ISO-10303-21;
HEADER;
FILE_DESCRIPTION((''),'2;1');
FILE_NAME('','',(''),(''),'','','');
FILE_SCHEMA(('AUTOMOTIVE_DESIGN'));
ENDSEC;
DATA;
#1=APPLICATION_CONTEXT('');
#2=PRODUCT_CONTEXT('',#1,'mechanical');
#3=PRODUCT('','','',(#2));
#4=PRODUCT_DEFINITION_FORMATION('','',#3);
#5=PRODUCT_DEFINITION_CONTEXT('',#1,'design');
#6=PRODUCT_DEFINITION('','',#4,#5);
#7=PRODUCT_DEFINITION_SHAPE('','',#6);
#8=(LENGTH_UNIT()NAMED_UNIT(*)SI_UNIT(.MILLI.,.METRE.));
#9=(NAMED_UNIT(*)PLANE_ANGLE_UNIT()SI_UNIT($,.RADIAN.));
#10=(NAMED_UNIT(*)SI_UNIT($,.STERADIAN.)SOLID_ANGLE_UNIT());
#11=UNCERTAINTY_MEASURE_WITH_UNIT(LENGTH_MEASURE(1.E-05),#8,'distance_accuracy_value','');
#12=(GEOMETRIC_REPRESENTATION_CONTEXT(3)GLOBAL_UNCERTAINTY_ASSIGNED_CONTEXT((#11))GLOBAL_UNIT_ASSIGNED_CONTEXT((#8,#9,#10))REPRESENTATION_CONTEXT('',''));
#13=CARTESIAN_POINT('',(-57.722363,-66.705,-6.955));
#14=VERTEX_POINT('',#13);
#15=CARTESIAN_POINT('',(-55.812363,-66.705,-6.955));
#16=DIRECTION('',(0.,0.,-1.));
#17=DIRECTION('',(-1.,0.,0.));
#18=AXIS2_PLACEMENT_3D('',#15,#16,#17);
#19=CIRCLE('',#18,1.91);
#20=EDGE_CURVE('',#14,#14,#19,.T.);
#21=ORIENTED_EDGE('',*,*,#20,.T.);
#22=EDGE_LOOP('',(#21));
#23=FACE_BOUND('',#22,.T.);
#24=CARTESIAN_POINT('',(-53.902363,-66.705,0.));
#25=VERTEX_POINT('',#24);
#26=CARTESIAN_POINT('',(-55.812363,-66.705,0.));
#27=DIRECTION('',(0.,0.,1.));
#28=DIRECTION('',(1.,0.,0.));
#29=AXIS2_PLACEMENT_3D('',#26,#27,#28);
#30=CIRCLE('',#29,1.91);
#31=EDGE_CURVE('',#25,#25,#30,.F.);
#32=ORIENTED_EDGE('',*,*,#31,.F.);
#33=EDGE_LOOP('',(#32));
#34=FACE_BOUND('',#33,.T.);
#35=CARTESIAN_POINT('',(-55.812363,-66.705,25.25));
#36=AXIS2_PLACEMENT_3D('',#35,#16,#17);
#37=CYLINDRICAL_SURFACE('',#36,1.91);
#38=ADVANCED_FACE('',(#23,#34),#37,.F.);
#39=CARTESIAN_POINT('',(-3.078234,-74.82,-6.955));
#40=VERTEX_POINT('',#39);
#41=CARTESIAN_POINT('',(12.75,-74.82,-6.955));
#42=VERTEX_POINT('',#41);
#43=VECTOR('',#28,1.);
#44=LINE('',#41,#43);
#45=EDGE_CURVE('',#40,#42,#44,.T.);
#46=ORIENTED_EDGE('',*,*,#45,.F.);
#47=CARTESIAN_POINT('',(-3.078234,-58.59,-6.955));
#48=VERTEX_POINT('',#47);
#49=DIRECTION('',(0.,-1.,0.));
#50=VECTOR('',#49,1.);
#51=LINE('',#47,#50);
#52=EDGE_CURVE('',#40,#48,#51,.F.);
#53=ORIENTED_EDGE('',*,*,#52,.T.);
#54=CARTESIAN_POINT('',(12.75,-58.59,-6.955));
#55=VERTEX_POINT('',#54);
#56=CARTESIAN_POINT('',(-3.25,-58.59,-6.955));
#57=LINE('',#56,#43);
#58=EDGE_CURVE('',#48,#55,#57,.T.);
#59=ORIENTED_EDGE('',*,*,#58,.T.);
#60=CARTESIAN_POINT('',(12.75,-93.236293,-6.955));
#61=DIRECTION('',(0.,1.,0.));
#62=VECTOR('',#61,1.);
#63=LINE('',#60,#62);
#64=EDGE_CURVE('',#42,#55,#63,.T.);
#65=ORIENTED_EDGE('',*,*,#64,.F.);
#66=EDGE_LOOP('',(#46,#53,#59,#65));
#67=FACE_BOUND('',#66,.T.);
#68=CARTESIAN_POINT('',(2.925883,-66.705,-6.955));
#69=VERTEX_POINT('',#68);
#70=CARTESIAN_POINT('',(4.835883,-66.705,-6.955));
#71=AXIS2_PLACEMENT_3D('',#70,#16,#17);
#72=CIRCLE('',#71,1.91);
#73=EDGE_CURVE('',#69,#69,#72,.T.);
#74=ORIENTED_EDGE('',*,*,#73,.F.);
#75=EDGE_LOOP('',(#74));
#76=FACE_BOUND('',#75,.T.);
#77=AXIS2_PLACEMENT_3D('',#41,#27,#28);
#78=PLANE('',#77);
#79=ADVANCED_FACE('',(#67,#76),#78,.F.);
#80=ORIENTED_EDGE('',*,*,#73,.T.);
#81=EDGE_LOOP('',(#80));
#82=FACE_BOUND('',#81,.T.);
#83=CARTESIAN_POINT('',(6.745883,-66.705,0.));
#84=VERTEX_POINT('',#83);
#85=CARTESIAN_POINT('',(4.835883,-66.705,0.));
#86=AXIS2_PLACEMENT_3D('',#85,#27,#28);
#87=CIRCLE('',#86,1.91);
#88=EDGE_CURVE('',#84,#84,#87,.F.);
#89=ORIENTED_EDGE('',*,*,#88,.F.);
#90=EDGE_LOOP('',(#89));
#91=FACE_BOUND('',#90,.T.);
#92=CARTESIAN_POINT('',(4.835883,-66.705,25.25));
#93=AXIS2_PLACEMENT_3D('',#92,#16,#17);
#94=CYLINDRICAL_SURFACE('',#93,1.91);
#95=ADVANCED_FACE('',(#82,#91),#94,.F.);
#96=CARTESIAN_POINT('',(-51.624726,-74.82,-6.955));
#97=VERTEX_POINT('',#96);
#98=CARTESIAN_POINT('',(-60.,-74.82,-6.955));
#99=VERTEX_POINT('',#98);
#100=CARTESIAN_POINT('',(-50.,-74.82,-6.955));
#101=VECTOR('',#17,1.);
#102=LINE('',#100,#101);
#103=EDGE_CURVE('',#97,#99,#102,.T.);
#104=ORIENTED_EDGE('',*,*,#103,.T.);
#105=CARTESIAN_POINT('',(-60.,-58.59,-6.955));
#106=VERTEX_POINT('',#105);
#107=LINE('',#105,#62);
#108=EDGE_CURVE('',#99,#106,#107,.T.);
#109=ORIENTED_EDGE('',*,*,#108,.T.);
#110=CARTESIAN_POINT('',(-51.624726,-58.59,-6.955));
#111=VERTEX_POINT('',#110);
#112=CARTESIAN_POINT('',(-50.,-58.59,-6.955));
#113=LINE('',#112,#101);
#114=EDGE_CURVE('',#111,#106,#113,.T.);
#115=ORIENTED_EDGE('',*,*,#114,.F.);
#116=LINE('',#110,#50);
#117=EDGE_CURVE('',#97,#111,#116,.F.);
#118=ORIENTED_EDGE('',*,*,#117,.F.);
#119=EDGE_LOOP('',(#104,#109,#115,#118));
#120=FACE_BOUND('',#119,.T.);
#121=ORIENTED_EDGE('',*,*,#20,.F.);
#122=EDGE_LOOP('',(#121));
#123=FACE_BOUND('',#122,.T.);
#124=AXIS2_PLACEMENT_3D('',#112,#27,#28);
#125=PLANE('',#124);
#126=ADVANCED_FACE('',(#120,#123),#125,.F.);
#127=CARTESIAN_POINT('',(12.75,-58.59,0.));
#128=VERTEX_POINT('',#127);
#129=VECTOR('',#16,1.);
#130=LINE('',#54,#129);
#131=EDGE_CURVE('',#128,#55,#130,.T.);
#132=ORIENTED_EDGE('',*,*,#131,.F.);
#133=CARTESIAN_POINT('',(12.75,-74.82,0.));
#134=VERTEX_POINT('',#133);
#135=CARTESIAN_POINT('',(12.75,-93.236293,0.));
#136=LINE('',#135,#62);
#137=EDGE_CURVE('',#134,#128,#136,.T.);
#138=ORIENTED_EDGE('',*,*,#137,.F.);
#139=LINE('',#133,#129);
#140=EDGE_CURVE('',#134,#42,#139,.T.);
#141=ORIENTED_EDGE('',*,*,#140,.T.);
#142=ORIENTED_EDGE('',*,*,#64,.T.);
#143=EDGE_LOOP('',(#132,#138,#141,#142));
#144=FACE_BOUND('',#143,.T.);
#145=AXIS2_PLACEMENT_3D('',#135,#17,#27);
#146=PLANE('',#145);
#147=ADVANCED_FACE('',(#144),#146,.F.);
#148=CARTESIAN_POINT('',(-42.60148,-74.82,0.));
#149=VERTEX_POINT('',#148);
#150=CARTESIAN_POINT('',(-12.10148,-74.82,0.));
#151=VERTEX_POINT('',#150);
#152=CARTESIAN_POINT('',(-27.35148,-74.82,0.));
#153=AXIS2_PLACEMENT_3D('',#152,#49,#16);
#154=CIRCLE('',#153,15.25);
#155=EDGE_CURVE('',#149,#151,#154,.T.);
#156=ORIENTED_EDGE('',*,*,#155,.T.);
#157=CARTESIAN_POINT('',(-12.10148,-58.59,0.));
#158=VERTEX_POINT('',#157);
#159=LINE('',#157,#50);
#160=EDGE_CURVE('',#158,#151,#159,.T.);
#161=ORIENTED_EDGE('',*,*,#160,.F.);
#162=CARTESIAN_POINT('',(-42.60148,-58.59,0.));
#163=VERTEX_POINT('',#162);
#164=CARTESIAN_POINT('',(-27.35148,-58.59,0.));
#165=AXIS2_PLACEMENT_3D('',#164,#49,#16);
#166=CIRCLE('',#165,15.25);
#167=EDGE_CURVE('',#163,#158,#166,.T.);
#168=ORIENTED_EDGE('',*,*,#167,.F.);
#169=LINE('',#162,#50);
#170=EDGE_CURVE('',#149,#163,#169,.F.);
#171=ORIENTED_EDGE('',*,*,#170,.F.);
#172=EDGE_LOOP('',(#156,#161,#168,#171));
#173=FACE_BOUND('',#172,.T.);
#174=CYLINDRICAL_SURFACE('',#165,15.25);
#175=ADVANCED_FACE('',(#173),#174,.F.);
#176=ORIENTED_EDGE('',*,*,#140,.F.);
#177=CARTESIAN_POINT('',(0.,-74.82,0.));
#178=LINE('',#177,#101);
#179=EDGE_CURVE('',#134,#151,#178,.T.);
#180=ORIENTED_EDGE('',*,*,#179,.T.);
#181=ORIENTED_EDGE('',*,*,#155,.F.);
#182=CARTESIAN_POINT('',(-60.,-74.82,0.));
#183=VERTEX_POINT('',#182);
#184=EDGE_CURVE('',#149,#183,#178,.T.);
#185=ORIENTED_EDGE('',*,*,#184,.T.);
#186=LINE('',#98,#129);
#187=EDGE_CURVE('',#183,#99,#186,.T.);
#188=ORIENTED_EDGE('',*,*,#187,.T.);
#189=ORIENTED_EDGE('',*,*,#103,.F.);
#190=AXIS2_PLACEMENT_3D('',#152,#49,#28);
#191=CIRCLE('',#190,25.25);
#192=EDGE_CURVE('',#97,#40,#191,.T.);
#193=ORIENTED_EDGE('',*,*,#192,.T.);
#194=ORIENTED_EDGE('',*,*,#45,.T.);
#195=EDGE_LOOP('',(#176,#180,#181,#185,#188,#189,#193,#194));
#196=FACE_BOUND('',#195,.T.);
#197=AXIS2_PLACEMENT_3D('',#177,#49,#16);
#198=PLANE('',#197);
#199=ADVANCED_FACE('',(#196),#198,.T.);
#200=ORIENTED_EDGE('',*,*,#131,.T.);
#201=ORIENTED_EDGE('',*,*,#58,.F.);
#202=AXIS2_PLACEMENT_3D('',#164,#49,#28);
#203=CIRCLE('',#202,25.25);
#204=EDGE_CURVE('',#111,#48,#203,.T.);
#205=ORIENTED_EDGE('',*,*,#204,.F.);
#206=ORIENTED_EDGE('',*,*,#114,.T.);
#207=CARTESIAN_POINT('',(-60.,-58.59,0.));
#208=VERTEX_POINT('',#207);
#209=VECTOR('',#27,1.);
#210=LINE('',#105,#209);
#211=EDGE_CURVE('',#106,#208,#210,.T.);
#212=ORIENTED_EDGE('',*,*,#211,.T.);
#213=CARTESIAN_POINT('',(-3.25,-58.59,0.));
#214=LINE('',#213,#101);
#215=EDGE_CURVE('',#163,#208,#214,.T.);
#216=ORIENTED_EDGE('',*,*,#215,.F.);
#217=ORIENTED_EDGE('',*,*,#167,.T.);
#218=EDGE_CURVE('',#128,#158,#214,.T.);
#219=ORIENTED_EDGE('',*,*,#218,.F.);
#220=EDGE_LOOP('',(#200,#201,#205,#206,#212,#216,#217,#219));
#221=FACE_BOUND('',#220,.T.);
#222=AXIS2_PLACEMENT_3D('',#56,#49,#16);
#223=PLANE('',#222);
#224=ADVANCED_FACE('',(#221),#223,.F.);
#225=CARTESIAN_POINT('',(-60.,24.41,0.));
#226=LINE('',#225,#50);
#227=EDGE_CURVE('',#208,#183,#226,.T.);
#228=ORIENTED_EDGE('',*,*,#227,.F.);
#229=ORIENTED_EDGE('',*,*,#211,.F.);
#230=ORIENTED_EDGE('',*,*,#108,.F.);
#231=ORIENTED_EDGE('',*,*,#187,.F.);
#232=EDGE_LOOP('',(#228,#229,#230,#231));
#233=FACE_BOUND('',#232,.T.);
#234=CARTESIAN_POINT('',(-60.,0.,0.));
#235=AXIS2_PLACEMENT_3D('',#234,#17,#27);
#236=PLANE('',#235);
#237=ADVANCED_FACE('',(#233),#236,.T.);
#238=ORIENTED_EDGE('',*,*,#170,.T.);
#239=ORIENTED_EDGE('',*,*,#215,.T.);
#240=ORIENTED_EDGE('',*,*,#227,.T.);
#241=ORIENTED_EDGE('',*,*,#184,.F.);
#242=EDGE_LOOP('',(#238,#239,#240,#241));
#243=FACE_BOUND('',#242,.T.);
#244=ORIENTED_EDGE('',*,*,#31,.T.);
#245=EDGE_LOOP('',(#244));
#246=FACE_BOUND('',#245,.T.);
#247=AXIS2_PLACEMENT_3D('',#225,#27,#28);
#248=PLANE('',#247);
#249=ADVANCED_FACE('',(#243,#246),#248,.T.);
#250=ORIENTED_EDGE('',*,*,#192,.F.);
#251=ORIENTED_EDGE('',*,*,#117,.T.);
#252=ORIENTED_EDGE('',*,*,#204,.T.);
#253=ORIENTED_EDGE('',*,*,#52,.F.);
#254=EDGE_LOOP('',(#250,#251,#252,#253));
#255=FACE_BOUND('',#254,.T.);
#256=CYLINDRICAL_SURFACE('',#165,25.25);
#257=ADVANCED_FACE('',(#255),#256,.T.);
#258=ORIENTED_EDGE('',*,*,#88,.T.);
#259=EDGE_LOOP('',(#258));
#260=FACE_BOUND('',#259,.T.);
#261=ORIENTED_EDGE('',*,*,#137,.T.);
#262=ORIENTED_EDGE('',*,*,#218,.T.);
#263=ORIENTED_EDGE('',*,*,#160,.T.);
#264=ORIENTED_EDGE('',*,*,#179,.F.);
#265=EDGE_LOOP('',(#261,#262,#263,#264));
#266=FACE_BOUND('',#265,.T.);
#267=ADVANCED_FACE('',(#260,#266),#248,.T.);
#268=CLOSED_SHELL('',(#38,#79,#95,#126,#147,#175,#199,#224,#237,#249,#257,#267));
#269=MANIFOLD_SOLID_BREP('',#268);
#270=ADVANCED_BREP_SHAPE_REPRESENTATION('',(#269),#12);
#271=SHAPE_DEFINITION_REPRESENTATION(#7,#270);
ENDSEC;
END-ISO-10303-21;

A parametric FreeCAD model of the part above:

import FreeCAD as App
import Part
import Sketcher
from FreeCAD import Vector


def add_polygon(sketch, points):
    """Adds a closed chain of lines whose ends are joined by coincident constraints."""
    first, n = sketch.GeometryCount, len(points)
    for a, b in zip(points, points[1:] + points[:1]):
        sketch.addGeometry(Part.LineSegment(App.Vector(*a, 0), App.Vector(*b, 0)), False)
    for i in range(n):
        sketch.addConstraint(Sketcher.Constraint("Coincident", first + i, 2, first + (i + 1) % n, 1))

doc = App.newDocument("Part")
body = doc.addObject("PartDesign::Body", "Body")

# Sketch on XZ plane
sketch1 = body.newObject("Sketcher::SketchObject", "Sketch")
sketch1.AttachmentSupport = (doc.getObject("XZ_Plane"), [""])
sketch1.MapMode = "FlatFace"
add_polygon(sketch1, [(-26, -17), (-26, 17), (26, 17), (26, -17)])  # lines 0-3
add_polygon(sketch1, [(16, 7), (-16, 7), (-16, -7), (16, -7)])  # lines 4-7
sketch1.addConstraint([
    Sketcher.Constraint("Vertical", 0),
    Sketcher.Constraint("Horizontal", 1),
    Sketcher.Constraint("Vertical", 2),
    Sketcher.Constraint("Horizontal", 3),
    Sketcher.Constraint("Horizontal", 4),
    Sketcher.Constraint("Vertical", 5),
    Sketcher.Constraint("Horizontal", 6),
    Sketcher.Constraint("Vertical", 7),
    Sketcher.Constraint("Symmetric", 0, 2, 2, 2, -1, 1),
    Sketcher.Constraint("Symmetric", 4, 2, 6, 2, -1, 1),
    Sketcher.Constraint("DistanceX", 1, 1, 1, 2, 51.5),
    Sketcher.Constraint("DistanceX", 4, 2, 4, 1, 31.5),
    Sketcher.Constraint("DistanceY", 4, 2, 0, 2, 10.0),
    Sketcher.Constraint("DistanceY", 0, 1, 0, 2, 34.15),
])
pad1 = body.newObject("PartDesign::Pad", "Pad")
pad1.Profile = sketch1
pad1.Length = 12.25
pad1.Reversed = True

# Sketch on XZ plane
sketch2 = body.newObject("Sketcher::SketchObject", "Sketch001")
sketch2.AttachmentSupport = (doc.getObject("XZ_Plane"), [""])
sketch2.MapMode = "FlatFace"
sketch2.AttachmentOffset = App.Placement(Vector(0, 0, -12.25), App.Rotation())
sketch2.addGeometry([
    Part.Circle(Vector(-20.8, 0, 0), Vector(0, 0, 1), 1.9),
    Part.Circle(Vector(20.8, 0, 0), Vector(0, 0, 1), 1.9),
], False)
sketch2.addConstraint([
    Sketcher.Constraint("Equal", 0, 1),
    Sketcher.Constraint("Symmetric", 0, 3, 1, 3, -1, 1),
    Sketcher.Constraint("PointOnObject", 0, 3, -1),
    Sketcher.Constraint("Diameter", 0, 3.82),
    Sketcher.Constraint("DistanceX", 0, 3, 1, 3, 41.5),
])
pocket1 = body.newObject("PartDesign::Pocket", "Pocket")
pocket1.Profile = sketch2
pocket1.Type = "ThroughAll"
pocket1.Reversed = True

# Sketch on XZ plane
sketch3 = body.newObject("Sketcher::SketchObject", "Sketch002")
sketch3.AttachmentSupport = (doc.getObject("XZ_Plane"), [""])
sketch3.MapMode = "FlatFace"
add_polygon(sketch3, [(13, 7), (13, -7), (26, -7), (26, 7)])  # lines 0-3
sketch3.addConstraint([
    Sketcher.Constraint("Vertical", 0),
    Sketcher.Constraint("Horizontal", 1),
    Sketcher.Constraint("Vertical", 2),
    Sketcher.Constraint("Horizontal", 3),
    Sketcher.Constraint("DistanceX", 1, 1, 1, 2, 13.0),
    Sketcher.Constraint("DistanceY", 0, 2, 0, 1, 13.91),
    Sketcher.Constraint("DistanceX", -1, 1, 0, 2, 12.75),
    Sketcher.Constraint("DistanceY", 0, 2, -1, 1, 6.955),
])
pad2 = body.newObject("PartDesign::Pad", "Pad001")
pad2.Profile = sketch3
pad2.Length = 74.82

# Sketch on YZ plane
sketch4 = body.newObject("Sketcher::SketchObject", "Sketch003")
sketch4.AttachmentSupport = (doc.getObject("YZ_Plane"), [""])
sketch4.MapMode = "FlatFace"
sketch4.AttachmentOffset = App.Placement(Vector(0, 0, 12.75), App.Rotation())
add_polygon(sketch4, [(-59, -7), (-75, -7), (-75, 7), (-59, 7)])  # lines 0-3
sketch4.addConstraint([
    Sketcher.Constraint("Horizontal", 0),
    Sketcher.Constraint("Vertical", 1),
    Sketcher.Constraint("Horizontal", 2),
    Sketcher.Constraint("Vertical", 3),
    Sketcher.Constraint("DistanceX", 0, 2, 0, 1, 16.23),
    Sketcher.Constraint("DistanceY", 1, 1, 1, 2, 13.91),
    Sketcher.Constraint("DistanceX", 0, 2, -1, 1, 74.82),
    Sketcher.Constraint("DistanceY", 0, 2, -1, 1, 6.955),
])
pad3 = body.newObject("PartDesign::Pad", "Pad002")
pad3.Profile = sketch4
pad3.Length = 16
pad3.Reversed = True

# Sketch on XZ plane
sketch5 = body.newObject("Sketcher::SketchObject", "Sketch004")
sketch5.AttachmentSupport = (doc.getObject("XZ_Plane"), [""])
sketch5.MapMode = "FlatFace"
sketch5.AttachmentOffset = App.Placement(Vector(0, 0, 74.82), App.Rotation())
sketch5.addGeometry([
    Part.Circle(Vector(-27, 0, 0), Vector(0, 0, 1), 25),
    Part.Circle(Vector(-27, 0, 0), Vector(0, 0, 1), 15),
], False)
sketch5.addConstraint([
    Sketcher.Constraint("Coincident", 1, 3, 0, 3),
    Sketcher.Constraint("PointOnObject", 0, 3, -1),
    Sketcher.Constraint("Diameter", 0, 50.5),
    Sketcher.Constraint("Diameter", 1, 30.5),
    Sketcher.Constraint("DistanceX", 0, 3, -1, 1, 27.35148),
])
pad4 = body.newObject("PartDesign::Pad", "Pad003")
pad4.Profile = sketch5
pad4.Length = 16.23
pad4.Reversed = True

# Sketch on XY plane
sketch6 = body.newObject("Sketcher::SketchObject", "Sketch005")
sketch6.AttachmentSupport = (doc.getObject("XY_Plane"), [""])
sketch6.MapMode = "FlatFace"
sketch6.AttachmentOffset = App.Placement(Vector(0, 0, -6.955), App.Rotation())
sketch6.addGeometry(Part.Circle(Vector(4.8, -66.7, 0), Vector(0, 0, 1), 1.9), False)
sketch6.addConstraint([
    Sketcher.Constraint("Diameter", 0, 3.82),
    Sketcher.Constraint("DistanceY", 0, 3, -1, 1, 66.705),
    Sketcher.Constraint("DistanceX", -1, 1, 0, 3, 4.835883),
])
pocket2 = body.newObject("PartDesign::Pocket", "Pocket001")
pocket2.Profile = sketch6
pocket2.Type = "ThroughAll"
pocket2.Reversed = True

# Sketch on YZ plane
sketch7 = body.newObject("Sketcher::SketchObject", "Sketch006")
sketch7.AttachmentSupport = (doc.getObject("YZ_Plane"), [""])
sketch7.MapMode = "FlatFace"
sketch7.AttachmentOffset = App.Placement(Vector(0, 0, -60), App.Rotation())
add_polygon(sketch7, [(-59, 7), (-75, 7), (-75, -7), (-59, -7)])  # lines 0-3
sketch7.addConstraint([
    Sketcher.Constraint("Horizontal", 0),
    Sketcher.Constraint("Vertical", 1),
    Sketcher.Constraint("Horizontal", 2),
    Sketcher.Constraint("Vertical", 3),
    Sketcher.Constraint("DistanceX", 0, 2, 0, 1, 16.23),
    Sketcher.Constraint("DistanceY", 1, 2, 1, 1, 13.91),
    Sketcher.Constraint("DistanceX", 0, 2, -1, 1, 74.82),
    Sketcher.Constraint("DistanceY", -1, 1, 0, 2, 6.955),
])
pad5 = body.newObject("PartDesign::Pad", "Pad004")
pad5.Profile = sketch7
pad5.Length = 10

# Sketch on XY plane
sketch8 = body.newObject("Sketcher::SketchObject", "Sketch007")
sketch8.AttachmentSupport = (doc.getObject("XY_Plane"), [""])
sketch8.MapMode = "FlatFace"
sketch8.AttachmentOffset = App.Placement(Vector(0, 0, -6.955), App.Rotation())
sketch8.addGeometry(Part.Circle(Vector(-55.8, -66.7, 0), Vector(0, 0, 1), 1.9), False)
sketch8.addConstraint([
    Sketcher.Constraint("Diameter", 0, 3.82),
    Sketcher.Constraint("DistanceY", 0, 3, -1, 1, 66.705),
    Sketcher.Constraint("DistanceX", 0, 3, -1, 1, 55.812363),
])
pocket3 = body.newObject("PartDesign::Pocket", "Pocket002")
pocket3.Profile = sketch8
pocket3.Type = "ThroughAll"
pocket3.Reversed = True

# Sketch on XZ plane
sketch9 = body.newObject("Sketcher::SketchObject", "Sketch008")
sketch9.AttachmentSupport = (doc.getObject("XZ_Plane"), [""])
sketch9.MapMode = "FlatFace"
sketch9.AttachmentOffset = App.Placement(Vector(0, 0, 58.59), App.Rotation())
add_polygon(sketch9, [(-60, 0), (-60, 28), (37, 28), (37, 0)])  # lines 0-3
sketch9.addConstraint([
    Sketcher.Constraint("Vertical", 0),
    Sketcher.Constraint("Horizontal", 1),
    Sketcher.Constraint("Vertical", 2),
    Sketcher.Constraint("Horizontal", 3),
    Sketcher.Constraint("PointOnObject", 2, 2, -1),
    Sketcher.Constraint("DistanceX", 0, 2, -1, 1, 60.0),
    Sketcher.Constraint("DistanceX", 1, 1, 1, 2, 96.544545),
    Sketcher.Constraint("DistanceY", 0, 1, 0, 2, 28.426666),
])
pocket4 = body.newObject("PartDesign::Pocket", "Pocket003")
pocket4.Profile = sketch9
pocket4.Type = "ThroughAll"
pocket4.Midplane = True

# Sketch on YZ plane
sketch10 = body.newObject("Sketcher::SketchObject", "Sketch009")
sketch10.AttachmentSupport = (doc.getObject("YZ_Plane"), [""])
sketch10.MapMode = "FlatFace"
sketch10.AttachmentOffset = App.Placement(Vector(0, 0, 25.75), App.Rotation())
add_polygon(sketch10, [(14, 0), (-36, 0), (-36, -19), (14, -19)])  # lines 0-3
sketch10.addConstraint([
    Sketcher.Constraint("Horizontal", 0),
    Sketcher.Constraint("Vertical", 1),
    Sketcher.Constraint("Horizontal", 2),
    Sketcher.Constraint("Vertical", 3),
    Sketcher.Constraint("PointOnObject", 0, 2, -1),
    Sketcher.Constraint("DistanceX", 0, 2, 0, 1, 50.693982),
    Sketcher.Constraint("DistanceY", 1, 2, 1, 1, 18.566153),
    Sketcher.Constraint("DistanceX", -1, 1, 2, 2, 14.457689),
])
pocket5 = body.newObject("PartDesign::Pocket", "Pocket004")
pocket5.Profile = sketch10
pocket5.Length = 57

# Sketch on XZ plane
sketch11 = body.newObject("Sketcher::SketchObject", "Sketch010")
sketch11.AttachmentSupport = (doc.getObject("XZ_Plane"), [""])
sketch11.MapMode = "FlatFace"
sketch11.AttachmentOffset = App.Placement(Vector(0, 0, 36.236293), App.Rotation())
add_polygon(sketch11, [(13, -7), (13, 0), (26, 0), (26, -7)])  # lines 0-3
sketch11.addConstraint([
    Sketcher.Constraint("Vertical", 0),
    Sketcher.Constraint("Horizontal", 1),
    Sketcher.Constraint("Vertical", 2),
    Sketcher.Constraint("Horizontal", 3),
    Sketcher.Constraint("PointOnObject", 0, 2, -1),
    Sketcher.Constraint("DistanceX", 1, 1, 1, 2, 13.0),
    Sketcher.Constraint("DistanceY", 0, 1, 0, 2, 6.955),
    Sketcher.Constraint("DistanceX", -1, 1, 0, 2, 12.75),
])
pocket6 = body.newObject("PartDesign::Pocket", "Pocket005")
pocket6.Profile = sketch11
pocket6.Length = 57
pocket6.Reversed = True

doc.recompute()
